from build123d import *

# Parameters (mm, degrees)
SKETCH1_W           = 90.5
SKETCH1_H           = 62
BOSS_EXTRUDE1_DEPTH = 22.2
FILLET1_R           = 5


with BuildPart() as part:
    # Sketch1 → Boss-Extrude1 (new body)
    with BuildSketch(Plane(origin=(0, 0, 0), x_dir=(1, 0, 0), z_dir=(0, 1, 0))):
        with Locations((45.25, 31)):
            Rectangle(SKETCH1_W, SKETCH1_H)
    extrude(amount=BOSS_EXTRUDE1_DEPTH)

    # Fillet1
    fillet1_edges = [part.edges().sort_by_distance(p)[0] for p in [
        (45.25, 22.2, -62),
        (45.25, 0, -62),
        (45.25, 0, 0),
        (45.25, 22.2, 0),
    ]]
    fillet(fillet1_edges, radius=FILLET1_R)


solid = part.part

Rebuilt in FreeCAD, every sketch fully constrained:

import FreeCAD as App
import Part
import Sketcher

V = App.Vector


def edges_at(feature, points):
    """Names of the edges that pass closest to the given points."""
    edges = feature.Shape.Edges
    near = lambda p: min(range(len(edges)), key=lambda i: edges[i].distToShape(Part.Vertex(*p))[0])
    return sorted({f"Edge{near(p) + 1}" for p in points})

doc = App.newDocument("Part")
params = doc.addObject("Spreadsheet::Sheet", "Params")
for row, (alias, value) in enumerate([
    ("sketch1_height", "62 mm"),
    ("sketch1_width", "90.5 mm"),
    ("pad1_length", "22.2 mm"),
    ("fillet_radius", "5 mm"),
], start=1):
    params.set(f"A{row}", alias)
    params.set(f"B{row}", "=" + value)
    params.setAlias(f"B{row}", alias)

body = doc.addObject("PartDesign::Body", "Body")

# Sketch on XZ plane
sketch1 = body.newObject("Sketcher::SketchObject", "Sketch")
sketch1.AttachmentSupport = (doc.getObject("XZ_Plane"), [""])
sketch1.MapMode = "FlatFace"
sketch1.addGeometry([
    Part.LineSegment(V(0, -62, 0), V(0, 0, 0)),
    Part.LineSegment(V(0, 0, 0), V(90, 0, 0)),
    Part.LineSegment(V(90, 0, 0), V(90, -62, 0)),
    Part.LineSegment(V(90, -62, 0), V(0, -62, 0)),
], False)
sketch1.addConstraint([
    Sketcher.Constraint("Coincident", 0, 2, 1, 1),
    Sketcher.Constraint("Coincident", 1, 2, 2, 1),
    Sketcher.Constraint("Coincident", 2, 2, 3, 1),
    Sketcher.Constraint("Coincident", 3, 2, 0, 1),
    Sketcher.Constraint("Vertical", 0),
    Sketcher.Constraint("Horizontal", 1),
    Sketcher.Constraint("Vertical", 2),
    Sketcher.Constraint("Horizontal", 3),
    Sketcher.Constraint("Coincident", 0, 2, -1, 1),
    Sketcher.Constraint("DistanceY", 0, 1, 0, 2, 62.0),
    Sketcher.Constraint("DistanceX", 1, 1, 1, 2, 90.5),
])
sketch1.setExpression("Constraints[9]", "Params.sketch1_height")
sketch1.setExpression("Constraints[10]", "Params.sketch1_width")
pad1 = body.newObject("PartDesign::Pad", "Pad")
pad1.Profile = sketch1
pad1.setExpression("Length", "Params.pad1_length")
pad1.Reversed = True
doc.recompute()

fillet = body.newObject("PartDesign::Fillet", "Fillet")
fillet.Base = (pad1, edges_at(pad1, [
    (45.25, 22.2, -62),
    (45.25, 0, -62),
    (45.25, 0, 0),
    (45.25, 22.2, 0),
]))
fillet.setExpression("Radius", "Params.fillet_radius")

doc.recompute()
